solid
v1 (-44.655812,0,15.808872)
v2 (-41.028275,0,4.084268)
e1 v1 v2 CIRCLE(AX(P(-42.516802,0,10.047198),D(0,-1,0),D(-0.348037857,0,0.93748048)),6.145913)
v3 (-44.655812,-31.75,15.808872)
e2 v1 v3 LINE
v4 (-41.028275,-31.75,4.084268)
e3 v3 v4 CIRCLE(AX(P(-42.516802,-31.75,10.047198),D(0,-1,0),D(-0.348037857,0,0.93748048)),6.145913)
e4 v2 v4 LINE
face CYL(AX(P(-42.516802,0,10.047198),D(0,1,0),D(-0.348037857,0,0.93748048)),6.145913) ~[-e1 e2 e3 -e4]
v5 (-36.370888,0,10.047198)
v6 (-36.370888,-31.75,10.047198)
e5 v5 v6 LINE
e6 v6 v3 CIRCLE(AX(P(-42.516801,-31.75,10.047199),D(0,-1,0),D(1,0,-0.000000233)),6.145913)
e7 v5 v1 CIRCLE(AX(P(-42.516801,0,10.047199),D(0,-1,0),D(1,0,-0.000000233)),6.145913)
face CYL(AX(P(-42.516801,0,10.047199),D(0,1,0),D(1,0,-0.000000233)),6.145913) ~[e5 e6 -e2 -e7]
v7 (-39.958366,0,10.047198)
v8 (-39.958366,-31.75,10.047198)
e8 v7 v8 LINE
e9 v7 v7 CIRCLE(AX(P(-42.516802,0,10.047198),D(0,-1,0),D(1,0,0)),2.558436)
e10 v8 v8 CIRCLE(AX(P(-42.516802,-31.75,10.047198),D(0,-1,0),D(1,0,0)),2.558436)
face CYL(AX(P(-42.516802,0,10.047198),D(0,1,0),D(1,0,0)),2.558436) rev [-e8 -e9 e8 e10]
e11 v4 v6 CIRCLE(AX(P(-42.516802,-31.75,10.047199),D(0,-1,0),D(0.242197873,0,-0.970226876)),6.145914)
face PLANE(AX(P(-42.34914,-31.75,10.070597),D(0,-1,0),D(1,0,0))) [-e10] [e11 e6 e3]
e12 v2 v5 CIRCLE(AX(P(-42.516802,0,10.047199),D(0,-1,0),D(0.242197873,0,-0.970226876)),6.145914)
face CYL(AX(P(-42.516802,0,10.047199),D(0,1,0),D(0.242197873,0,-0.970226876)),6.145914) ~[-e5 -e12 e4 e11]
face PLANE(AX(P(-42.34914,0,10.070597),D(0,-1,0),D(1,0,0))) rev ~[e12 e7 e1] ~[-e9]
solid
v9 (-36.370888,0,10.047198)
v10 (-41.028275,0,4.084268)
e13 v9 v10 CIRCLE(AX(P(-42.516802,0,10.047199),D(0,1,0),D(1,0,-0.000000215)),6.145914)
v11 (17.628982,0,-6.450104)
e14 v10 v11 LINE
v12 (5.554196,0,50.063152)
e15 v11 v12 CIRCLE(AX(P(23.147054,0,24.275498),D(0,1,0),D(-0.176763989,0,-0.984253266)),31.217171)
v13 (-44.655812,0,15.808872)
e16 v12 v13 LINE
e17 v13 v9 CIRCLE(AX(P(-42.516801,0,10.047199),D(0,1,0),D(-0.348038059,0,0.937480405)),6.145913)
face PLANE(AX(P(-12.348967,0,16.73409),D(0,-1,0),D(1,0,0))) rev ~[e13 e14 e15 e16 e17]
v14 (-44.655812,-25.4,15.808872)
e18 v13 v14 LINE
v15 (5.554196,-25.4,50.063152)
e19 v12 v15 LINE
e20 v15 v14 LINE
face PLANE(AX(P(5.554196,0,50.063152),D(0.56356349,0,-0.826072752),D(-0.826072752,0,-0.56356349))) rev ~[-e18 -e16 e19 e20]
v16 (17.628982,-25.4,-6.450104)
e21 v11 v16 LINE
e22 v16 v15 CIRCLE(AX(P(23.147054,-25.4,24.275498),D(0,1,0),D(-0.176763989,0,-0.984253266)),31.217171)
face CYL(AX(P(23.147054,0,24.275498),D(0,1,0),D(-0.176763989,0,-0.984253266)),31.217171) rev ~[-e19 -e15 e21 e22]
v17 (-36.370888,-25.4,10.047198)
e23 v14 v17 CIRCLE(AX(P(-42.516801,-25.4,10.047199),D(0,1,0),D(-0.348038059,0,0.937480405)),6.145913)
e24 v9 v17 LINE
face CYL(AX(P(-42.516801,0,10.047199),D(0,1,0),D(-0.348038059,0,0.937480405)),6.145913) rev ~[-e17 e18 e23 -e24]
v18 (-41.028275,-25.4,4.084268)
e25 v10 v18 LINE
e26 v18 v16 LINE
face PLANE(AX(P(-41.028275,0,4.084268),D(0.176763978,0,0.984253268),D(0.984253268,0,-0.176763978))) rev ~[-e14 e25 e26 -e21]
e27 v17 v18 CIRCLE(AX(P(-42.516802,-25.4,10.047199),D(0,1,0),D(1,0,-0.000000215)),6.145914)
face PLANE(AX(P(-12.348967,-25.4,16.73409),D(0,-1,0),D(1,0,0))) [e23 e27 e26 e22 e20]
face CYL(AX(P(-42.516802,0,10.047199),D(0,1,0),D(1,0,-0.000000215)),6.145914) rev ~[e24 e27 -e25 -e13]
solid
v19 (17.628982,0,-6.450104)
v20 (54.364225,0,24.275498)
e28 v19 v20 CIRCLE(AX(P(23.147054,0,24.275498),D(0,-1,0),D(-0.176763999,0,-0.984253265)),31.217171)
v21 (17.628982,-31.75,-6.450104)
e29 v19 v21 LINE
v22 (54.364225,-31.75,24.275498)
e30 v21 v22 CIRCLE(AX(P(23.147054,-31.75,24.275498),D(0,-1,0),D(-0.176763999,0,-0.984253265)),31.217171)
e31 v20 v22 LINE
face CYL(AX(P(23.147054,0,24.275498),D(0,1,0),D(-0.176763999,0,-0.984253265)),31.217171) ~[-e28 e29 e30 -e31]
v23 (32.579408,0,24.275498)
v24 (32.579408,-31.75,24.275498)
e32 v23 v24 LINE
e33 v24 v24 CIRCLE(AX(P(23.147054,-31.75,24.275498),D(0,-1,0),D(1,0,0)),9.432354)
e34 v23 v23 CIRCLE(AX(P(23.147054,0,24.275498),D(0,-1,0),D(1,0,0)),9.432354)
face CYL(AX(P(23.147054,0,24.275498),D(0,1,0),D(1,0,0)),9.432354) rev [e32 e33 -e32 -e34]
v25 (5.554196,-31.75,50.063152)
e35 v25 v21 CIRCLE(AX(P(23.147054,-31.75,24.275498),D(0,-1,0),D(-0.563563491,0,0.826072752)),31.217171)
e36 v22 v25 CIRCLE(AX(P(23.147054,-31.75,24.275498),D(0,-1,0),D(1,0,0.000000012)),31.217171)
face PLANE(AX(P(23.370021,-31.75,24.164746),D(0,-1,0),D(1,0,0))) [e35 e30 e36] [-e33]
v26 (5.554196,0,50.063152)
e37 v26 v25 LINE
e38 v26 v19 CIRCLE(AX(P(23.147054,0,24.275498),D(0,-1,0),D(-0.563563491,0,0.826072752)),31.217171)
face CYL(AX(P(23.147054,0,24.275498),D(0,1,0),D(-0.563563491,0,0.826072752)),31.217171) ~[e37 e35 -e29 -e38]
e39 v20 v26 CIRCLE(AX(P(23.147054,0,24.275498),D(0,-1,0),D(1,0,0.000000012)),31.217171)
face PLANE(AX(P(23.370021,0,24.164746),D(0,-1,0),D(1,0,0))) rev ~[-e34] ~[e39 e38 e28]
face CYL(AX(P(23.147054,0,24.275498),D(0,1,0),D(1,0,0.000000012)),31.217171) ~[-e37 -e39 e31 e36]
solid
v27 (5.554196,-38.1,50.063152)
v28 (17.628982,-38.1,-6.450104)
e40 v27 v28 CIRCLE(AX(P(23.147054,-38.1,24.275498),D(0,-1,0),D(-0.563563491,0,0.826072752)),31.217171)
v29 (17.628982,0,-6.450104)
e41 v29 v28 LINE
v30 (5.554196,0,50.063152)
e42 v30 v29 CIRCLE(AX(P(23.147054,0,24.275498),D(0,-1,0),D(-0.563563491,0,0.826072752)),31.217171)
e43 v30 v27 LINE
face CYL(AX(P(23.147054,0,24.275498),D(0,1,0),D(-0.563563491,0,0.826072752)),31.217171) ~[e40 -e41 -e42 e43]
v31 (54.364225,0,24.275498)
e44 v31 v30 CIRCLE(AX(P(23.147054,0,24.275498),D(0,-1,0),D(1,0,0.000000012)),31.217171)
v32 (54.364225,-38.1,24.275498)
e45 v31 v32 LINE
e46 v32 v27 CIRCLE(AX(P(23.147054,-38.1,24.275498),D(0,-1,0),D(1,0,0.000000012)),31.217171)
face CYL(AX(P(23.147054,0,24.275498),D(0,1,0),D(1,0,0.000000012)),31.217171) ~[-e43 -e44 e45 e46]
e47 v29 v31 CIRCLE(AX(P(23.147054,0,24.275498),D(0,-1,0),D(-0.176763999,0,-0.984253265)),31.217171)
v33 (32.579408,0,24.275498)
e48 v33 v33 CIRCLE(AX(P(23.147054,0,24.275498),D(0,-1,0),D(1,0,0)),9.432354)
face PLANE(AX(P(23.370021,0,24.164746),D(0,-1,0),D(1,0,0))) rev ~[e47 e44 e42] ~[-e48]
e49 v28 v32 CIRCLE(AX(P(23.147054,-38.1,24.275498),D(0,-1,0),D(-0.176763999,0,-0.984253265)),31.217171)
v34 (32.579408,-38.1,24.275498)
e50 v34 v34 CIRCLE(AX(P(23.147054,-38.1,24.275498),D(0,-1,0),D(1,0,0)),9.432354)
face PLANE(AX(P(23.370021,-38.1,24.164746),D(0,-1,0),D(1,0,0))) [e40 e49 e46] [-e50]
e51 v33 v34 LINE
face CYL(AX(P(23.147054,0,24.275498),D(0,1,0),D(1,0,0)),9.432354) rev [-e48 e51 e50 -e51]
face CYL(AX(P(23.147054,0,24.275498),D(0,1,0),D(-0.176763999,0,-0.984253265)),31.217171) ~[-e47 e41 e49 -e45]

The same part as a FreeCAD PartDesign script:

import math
import FreeCAD as App
import Part
import Sketcher

V = App.Vector
Q = App.Units.Quantity

doc = App.newDocument("Part")
body = doc.addObject("PartDesign::Body", "Body")
body.AllowCompound = True

sketch1 = doc.addObject("Sketcher::SketchObject", "Sketch")
body.addObject(sketch1)
sketch1.AttachmentSupport = (doc.XZ_Plane, [""])
sketch1.MapMode = "FlatFace"
sketch1.addGeometry(Part.ArcOfCircle(Part.Circle(V(-42.5, 10, 0), V(0, 0, 1), 6.1), math.radians(-76), math.radians(0)), False)
sketch1.addGeometry(Part.ArcOfCircle(Part.Circle(V(-42.5, 10, 0), V(0, 0, 1), 6.1), math.radians(0), math.radians(110)), False)
sketch1.addGeometry(Part.ArcOfCircle(Part.Circle(V(-42.5, 10, 0), V(0, 0, 1), 6.1), math.radians(110), math.radians(284)), False)
sketch1.addGeometry(Part.Circle(V(-42.5, 10, 0), V(0, 0, 1), 2.6), False)
sketch1.addGeometry(Part.ArcOfCircle(Part.Circle(V(23.1, 24.3, 0), V(0, 0, 1), 31.2), math.radians(0), math.radians(124)), False)
sketch1.addGeometry(Part.ArcOfCircle(Part.Circle(V(23.1, 24.3, 0), V(0, 0, 1), 31.2), math.radians(124), math.radians(260)), False)
sketch1.addGeometry(Part.ArcOfCircle(Part.Circle(V(23.1, 24.3, 0), V(0, 0, 1), 31.2), math.radians(-100), math.radians(0)), False)
sketch1.addGeometry(Part.Circle(V(23.1, 24.3, 0), V(0, 0, 1), 9.4), False)
sketch1.addConstraint(Sketcher.Constraint("Tangent", 0, 2, 1, 1))
sketch1.addConstraint(Sketcher.Constraint("Tangent", 1, 2, 2, 1))
sketch1.addConstraint(Sketcher.Constraint("Tangent", 2, 2, 0, 1))
sketch1.addConstraint(Sketcher.Constraint("Tangent", 4, 2, 5, 1))
sketch1.addConstraint(Sketcher.Constraint("Tangent", 5, 2, 6, 1))
sketch1.addConstraint(Sketcher.Constraint("Tangent", 6, 2, 4, 1))
sketch1.addConstraint(Sketcher.Constraint("Coincident", 3, 3, 0, 3))
sketch1.addConstraint(Sketcher.Constraint("Coincident", 7, 3, 4, 3))
sketch1.addConstraint(Sketcher.Constraint("Horizontal", 3, 3, 0, 2))
sketch1.addConstraint(Sketcher.Constraint("Horizontal", 7, 3, 6, 2))
sketch1.addConstraint(Sketcher.Constraint("Diameter", 7, 18.864708))
sketch1.addConstraint(Sketcher.Constraint("Radius", 4, 31.217171))
sketch1.addConstraint(Sketcher.Constraint("Diameter", 3, 5.116872))
sketch1.addConstraint(Sketcher.Constraint("Radius", 0, 6.145914))
sketch1.addConstraint(Sketcher.Constraint("DistanceY", 5, 2, 0, 2, Q("0.6495001 in")))
sketch1.addConstraint(Sketcher.Constraint("DistanceY", -1, 1, 0, 3, 10.047199))
sketch1.addConstraint(Sketcher.Constraint("DistanceX", 1, 3, -1, 1, 42.516801))
sketch1.addConstraint(Sketcher.Constraint("DistanceY", -1, 1, 5, 3, 24.275498))
sketch1.addConstraint(Sketcher.Constraint("DistanceX", -1, 1, 5, 2, 17.628982))
sketch1.addConstraint(Sketcher.Constraint("DistanceX", 1, 2, 0, 3, 2.13901))
sketch1.addConstraint(Sketcher.Constraint("DistanceY", 2, 2, 3, 3, 5.96293))
sketch1.addConstraint(Sketcher.Constraint("DistanceX", 4, 2, 7, 3, 17.592858))
pad1 = doc.addObject("PartDesign::Pad", "Pad")
body.addObject(pad1)
pad1.Profile = sketch1
pad1.Length = Q("1.25 in")
body2 = doc.addObject("PartDesign::Body", "Body001")

sketch2 = doc.addObject("Sketcher::SketchObject", "Sketch001")
body2.addObject(sketch2)
sketch2.AttachmentSupport = (doc.getObject("XZ_Plane001"), [""])
sketch2.MapMode = "FlatFace"
sketch2.addGeometry(Part.ArcOfCircle(Part.Circle(V(-42.516801, 10.047199, 0), V(0, 0, 1), 6.145913), math.radians(-0.000013), math.radians(110.367361)), False)
sketch2.addGeometry(Part.ArcOfCircle(Part.Circle(V(-42.516802, 10.047199, 0), V(0, 0, 1), 6.145914), math.radians(-75.983703), math.radians(-0.000012)), False)
sketch2.addGeometry(Part.LineSegment(V(-41.028275, 4.084268, 0), V(17.628982, -6.450104, 0)), False)
sketch2.addGeometry(Part.ArcOfCircle(Part.Circle(V(23.147054, 24.275498, 0), V(0, 0, 1), 31.217171), math.radians(124.302597), math.radians(259.818672)), False)
sketch2.addGeometry(Part.LineSegment(V(5.554196, 50.063152, 0), V(-44.655812, 15.808872, 0)), False)
sketch2.addConstraint(Sketcher.Constraint("Coincident", 0, 1, 1, 2))
sketch2.addConstraint(Sketcher.Constraint("Coincident", 1, 1, 2, 1))
sketch2.addConstraint(Sketcher.Constraint("Coincident", 2, 2, 3, 2))
sketch2.addConstraint(Sketcher.Constraint("Coincident", 3, 1, 4, 1))
sketch2.addConstraint(Sketcher.Constraint("Coincident", 4, 2, 0, 2))
sketch2.addConstraint(Sketcher.Constraint("Coincident", 1, 3, 0, 3))
sketch2.addConstraint(Sketcher.Constraint("Radius", 3, 31.217171))
sketch2.addConstraint(Sketcher.Constraint("Radius", 0, 6.145913))
sketch2.addConstraint(Sketcher.Constraint("DistanceY", 2, 2, 0, 1, Q("0.6495001 in")))
sketch2.addConstraint(Sketcher.Constraint("DistanceY", 2, 2, 0, 3, Q("0.6495001 in")))
sketch2.addConstraint(Sketcher.Constraint("DistanceX", 0, 3, -1, 1, 42.516801))
sketch2.addConstraint(Sketcher.Constraint("DistanceY", -1, 1, 0, 3, 10.047199))
sketch2.addConstraint(Sketcher.Constraint("DistanceY", -1, 1, 3, 3, 24.275498))
sketch2.addConstraint(Sketcher.Constraint("DistanceX", 1, 3, 3, 1, 48.070998))
sketch2.addConstraint(Sketcher.Constraint("Distance", 4, 60.781581))
sketch2.addConstraint(Sketcher.Constraint("DistanceY", -1, 1, 3, 1, 50.063152))
sketch2.addConstraint(Sketcher.Constraint("DistanceY", 1, 1, 0, 3, 5.962931))
pad2 = doc.addObject("PartDesign::Pad", "Pad001")
body2.addObject(pad2)
pad2.Profile = sketch2
pad2.Length = Q("1 in")
body3 = doc.addObject("PartDesign::Body", "Body002")

sketch3 = doc.addObject("Sketcher::SketchObject", "Sketch002")
body3.addObject(sketch3)
sketch3.AttachmentSupport = (doc.getObject("XZ_Plane002"), [""])
sketch3.MapMode = "FlatFace"
sketch3.addGeometry(Part.ArcOfCircle(Part.Circle(V(23, 24, 0), V(0, 0, 1), 31), math.radians(0), math.radians(124)), False)
sketch3.addGeometry(Part.ArcOfCircle(Part.Circle(V(23, 24, 0), V(0, 0, 1), 31), math.radians(124), math.radians(260)), False)
sketch3.addGeometry(Part.ArcOfCircle(Part.Circle(V(23, 24, 0), V(0, 0, 1), 31), math.radians(-100), math.radians(0)), False)
sketch3.addGeometry(Part.Circle(V(23, 24, 0), V(0, 0, 1), 9), False)
sketch3.addConstraint(Sketcher.Constraint("Tangent", 0, 2, 1, 1))
sketch3.addConstraint(Sketcher.Constraint("Tangent", 1, 2, 2, 1))
sketch3.addConstraint(Sketcher.Constraint("Tangent", 2, 2, 0, 1))
sketch3.addConstraint(Sketcher.Constraint("Coincident", 3, 3, 0, 3))
sketch3.addConstraint(Sketcher.Constraint("Horizontal", 3, 3, 2, 2))
sketch3.addConstraint(Sketcher.Constraint("Diameter", 3, 18.864708))
sketch3.addConstraint(Sketcher.Constraint("Radius", 0, 31.217171))
sketch3.addConstraint(Sketcher.Constraint("DistanceY", -1, 1, 1, 3, 24.275498))
sketch3.addConstraint(Sketcher.Constraint("DistanceY", 1, 2, 0, 3, 30.725602))
sketch3.addConstraint(Sketcher.Constraint("DistanceX", -1, 1, 1, 2, 17.628982))
sketch3.addConstraint(Sketcher.Constraint("DistanceX", 0, 2, 3, 3, 17.592858))
pad3 = doc.addObject("PartDesign::Pad", "Pad002")
body3.addObject(pad3)
pad3.Profile = sketch3
pad3.Length = Q("1.5 in")

doc.recompute()
